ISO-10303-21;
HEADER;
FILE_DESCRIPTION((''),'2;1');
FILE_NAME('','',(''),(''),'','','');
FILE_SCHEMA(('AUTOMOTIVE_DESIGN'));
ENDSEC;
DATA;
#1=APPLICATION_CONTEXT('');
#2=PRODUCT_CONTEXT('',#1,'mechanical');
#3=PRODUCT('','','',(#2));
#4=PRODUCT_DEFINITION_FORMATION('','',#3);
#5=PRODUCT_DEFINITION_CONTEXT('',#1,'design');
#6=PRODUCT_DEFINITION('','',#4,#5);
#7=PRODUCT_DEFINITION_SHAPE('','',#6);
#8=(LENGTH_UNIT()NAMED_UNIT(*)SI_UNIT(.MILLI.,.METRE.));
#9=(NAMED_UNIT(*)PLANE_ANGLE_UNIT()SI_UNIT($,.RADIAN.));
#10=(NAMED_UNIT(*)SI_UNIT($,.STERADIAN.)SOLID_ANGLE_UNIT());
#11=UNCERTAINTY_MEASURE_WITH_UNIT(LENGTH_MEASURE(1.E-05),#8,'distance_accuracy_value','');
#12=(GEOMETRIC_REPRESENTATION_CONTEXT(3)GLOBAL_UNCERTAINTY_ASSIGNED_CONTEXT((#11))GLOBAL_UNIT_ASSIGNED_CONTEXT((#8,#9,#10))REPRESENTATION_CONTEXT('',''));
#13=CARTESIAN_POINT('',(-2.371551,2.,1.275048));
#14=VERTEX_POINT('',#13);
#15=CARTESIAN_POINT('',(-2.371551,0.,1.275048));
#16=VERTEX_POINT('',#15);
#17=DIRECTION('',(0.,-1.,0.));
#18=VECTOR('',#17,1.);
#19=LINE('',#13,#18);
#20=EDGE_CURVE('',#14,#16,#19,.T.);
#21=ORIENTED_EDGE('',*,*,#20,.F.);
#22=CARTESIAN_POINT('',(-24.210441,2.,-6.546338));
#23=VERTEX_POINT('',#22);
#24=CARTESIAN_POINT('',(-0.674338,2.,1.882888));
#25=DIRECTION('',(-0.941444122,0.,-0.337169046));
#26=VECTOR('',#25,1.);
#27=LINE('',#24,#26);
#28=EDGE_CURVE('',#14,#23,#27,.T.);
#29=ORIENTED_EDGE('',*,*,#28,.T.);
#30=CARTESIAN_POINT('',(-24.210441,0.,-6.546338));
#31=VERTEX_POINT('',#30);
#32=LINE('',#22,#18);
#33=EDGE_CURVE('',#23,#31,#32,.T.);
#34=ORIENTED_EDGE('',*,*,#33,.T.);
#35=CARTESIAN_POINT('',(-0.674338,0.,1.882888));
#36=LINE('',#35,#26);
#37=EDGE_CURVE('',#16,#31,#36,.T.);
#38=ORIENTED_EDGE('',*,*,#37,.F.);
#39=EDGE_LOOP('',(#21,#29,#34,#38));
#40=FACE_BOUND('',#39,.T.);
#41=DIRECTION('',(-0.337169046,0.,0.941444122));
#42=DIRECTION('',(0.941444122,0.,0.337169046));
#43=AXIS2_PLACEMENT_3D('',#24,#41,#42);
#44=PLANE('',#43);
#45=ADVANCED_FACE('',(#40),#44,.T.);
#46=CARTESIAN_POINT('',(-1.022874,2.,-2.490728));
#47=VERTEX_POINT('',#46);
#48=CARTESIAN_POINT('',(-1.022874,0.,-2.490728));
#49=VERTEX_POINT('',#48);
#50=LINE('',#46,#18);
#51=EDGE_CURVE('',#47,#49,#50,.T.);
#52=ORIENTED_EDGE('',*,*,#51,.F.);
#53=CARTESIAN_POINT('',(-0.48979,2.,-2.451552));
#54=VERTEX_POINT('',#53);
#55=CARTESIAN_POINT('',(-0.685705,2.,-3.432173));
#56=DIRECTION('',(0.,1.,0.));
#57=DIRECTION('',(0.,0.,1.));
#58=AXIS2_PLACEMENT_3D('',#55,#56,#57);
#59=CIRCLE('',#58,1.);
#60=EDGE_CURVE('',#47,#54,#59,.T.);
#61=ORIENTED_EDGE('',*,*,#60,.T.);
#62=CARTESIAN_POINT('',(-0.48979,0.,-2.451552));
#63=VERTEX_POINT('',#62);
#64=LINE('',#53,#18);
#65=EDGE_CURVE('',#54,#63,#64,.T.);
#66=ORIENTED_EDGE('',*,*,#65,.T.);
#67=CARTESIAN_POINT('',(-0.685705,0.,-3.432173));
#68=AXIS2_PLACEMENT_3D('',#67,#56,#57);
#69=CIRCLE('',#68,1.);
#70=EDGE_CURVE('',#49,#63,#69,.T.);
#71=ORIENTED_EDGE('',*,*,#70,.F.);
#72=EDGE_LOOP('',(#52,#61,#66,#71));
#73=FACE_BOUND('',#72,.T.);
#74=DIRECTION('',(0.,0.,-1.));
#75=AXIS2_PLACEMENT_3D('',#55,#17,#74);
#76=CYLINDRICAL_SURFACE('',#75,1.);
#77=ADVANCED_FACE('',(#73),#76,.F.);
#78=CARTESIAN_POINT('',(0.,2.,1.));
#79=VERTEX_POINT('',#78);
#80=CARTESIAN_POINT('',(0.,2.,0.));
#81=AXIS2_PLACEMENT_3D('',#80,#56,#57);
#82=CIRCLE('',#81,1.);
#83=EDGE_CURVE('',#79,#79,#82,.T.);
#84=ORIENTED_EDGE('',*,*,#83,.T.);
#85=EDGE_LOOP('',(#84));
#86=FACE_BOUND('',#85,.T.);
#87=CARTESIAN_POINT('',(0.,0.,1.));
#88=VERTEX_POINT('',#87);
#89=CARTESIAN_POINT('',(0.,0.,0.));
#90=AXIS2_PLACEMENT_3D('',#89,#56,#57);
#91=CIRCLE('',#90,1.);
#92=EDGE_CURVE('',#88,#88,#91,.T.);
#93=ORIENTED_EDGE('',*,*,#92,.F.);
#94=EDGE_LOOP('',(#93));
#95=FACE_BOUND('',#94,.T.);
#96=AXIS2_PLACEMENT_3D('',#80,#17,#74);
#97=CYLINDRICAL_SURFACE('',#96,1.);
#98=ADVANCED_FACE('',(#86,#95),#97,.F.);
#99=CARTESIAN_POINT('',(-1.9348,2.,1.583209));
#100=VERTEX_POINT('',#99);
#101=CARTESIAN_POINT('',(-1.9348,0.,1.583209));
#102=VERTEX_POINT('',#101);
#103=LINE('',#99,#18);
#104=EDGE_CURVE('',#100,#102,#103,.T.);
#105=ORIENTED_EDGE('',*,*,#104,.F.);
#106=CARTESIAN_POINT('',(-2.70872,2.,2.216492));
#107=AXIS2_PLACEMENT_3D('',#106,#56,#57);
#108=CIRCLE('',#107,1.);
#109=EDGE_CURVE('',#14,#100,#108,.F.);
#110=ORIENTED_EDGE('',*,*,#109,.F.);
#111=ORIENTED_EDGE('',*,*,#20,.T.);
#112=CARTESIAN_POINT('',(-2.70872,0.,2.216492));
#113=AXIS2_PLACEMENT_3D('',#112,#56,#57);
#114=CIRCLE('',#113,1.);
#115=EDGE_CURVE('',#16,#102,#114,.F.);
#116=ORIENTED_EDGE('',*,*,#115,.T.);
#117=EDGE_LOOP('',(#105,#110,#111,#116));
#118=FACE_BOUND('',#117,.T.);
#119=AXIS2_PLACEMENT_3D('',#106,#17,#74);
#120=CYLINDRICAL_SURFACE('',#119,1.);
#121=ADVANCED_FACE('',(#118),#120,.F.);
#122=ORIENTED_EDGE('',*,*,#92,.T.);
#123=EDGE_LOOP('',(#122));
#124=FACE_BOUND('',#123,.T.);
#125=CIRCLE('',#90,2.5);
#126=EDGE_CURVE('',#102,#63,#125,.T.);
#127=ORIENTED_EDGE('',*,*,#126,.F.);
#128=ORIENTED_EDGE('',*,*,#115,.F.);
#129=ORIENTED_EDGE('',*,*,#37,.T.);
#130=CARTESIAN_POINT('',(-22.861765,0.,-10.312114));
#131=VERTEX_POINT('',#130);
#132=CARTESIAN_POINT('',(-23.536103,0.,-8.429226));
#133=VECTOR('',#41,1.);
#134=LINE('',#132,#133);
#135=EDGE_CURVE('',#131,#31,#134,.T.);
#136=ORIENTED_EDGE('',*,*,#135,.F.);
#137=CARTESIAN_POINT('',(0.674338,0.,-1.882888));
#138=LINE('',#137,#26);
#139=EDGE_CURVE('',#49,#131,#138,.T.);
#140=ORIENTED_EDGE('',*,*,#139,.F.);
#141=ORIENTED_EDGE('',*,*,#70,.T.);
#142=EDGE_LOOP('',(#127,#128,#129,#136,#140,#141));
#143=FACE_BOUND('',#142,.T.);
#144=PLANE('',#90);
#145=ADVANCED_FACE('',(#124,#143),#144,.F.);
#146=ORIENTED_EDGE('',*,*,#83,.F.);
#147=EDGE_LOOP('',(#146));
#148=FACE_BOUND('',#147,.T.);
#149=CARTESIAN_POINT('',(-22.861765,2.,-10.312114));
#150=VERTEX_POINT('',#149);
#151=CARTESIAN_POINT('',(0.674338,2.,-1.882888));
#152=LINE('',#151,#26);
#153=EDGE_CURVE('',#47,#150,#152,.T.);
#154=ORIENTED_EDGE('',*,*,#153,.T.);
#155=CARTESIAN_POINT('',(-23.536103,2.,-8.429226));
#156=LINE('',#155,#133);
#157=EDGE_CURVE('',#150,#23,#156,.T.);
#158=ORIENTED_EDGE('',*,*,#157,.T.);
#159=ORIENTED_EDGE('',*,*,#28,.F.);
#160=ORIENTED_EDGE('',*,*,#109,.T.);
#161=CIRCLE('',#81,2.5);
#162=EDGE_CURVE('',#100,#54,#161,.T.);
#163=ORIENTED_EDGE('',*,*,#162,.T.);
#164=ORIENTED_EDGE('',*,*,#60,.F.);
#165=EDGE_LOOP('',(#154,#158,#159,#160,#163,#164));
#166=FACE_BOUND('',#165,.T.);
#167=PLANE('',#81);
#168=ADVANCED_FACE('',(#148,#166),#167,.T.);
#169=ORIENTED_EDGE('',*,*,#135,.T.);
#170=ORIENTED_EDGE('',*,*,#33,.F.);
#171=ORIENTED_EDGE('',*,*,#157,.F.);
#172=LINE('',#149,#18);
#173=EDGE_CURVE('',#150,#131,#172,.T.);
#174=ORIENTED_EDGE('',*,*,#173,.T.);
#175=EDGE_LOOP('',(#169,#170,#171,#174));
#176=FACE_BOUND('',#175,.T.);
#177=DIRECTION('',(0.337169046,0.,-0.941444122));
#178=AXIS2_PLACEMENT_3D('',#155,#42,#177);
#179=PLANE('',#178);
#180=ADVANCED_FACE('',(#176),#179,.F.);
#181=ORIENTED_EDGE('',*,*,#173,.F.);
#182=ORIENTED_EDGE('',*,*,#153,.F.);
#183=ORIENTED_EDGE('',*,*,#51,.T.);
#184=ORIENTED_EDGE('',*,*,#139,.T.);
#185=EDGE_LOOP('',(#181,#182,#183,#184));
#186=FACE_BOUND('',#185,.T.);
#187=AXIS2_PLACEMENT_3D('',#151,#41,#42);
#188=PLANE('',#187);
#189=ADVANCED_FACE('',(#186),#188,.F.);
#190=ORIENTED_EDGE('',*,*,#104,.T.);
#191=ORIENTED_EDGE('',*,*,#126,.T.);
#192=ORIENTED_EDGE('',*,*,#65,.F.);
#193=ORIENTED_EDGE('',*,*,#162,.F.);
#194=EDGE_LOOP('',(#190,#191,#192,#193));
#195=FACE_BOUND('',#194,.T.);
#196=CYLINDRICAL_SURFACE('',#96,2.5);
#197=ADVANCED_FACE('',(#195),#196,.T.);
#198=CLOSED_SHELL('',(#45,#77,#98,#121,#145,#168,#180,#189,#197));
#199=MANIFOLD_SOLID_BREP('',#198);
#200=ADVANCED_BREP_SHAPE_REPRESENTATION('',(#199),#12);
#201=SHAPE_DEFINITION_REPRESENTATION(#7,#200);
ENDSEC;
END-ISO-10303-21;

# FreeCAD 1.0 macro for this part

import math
import FreeCAD as App
import Part
import Sketcher
from FreeCAD import Vector
Q = App.Units.Quantity

doc = App.newDocument("Part")
body = doc.addObject("PartDesign::Body", "Body")

# Sketch on XZ plane
sketch1 = body.newObject("Sketcher::SketchObject", "Sketch")
sketch1.AttachmentSupport = (doc.getObject("XZ_Plane"), [""])
sketch1.MapMode = "FlatFace"
sketch1.addGeometry(Part.LineSegment(Vector(-1.022874, -2.490728, 0), Vector(-22.861765, -10.312114, 0)), False)
sketch1.addGeometry(Part.LineSegment(Vector(-22.861765, -10.312114, 0), Vector(-24.210441, -6.546338, 0)), False)
sketch1.addGeometry(Part.LineSegment(Vector(-24.210441, -6.546338, 0), Vector(-2.371551, 1.275048, 0)), False)
sketch1.addGeometry(Part.ArcOfCircle(Part.Circle(Vector(-2.70872, 2.216492, 0), Vector(0, 0, 1), 1), math.radians(-70.295509), math.radians(-39.29279)), False)
sketch1.addGeometry(Part.ArcOfCircle(Part.Circle(Vector(0, 0, 0), Vector(0, 0, 1), 2.5), math.radians(-101.298229), math.radians(140.70721)), False)
sketch1.addGeometry(Part.ArcOfCircle(Part.Circle(Vector(-0.685705, -3.432172, 0), Vector(0, 0, 1), 1), math.radians(78.701771), math.radians(109.704491)), False)
sketch1.addGeometry(Part.Circle(Vector(0, 0, 0), Vector(0, 0, 1), 1), False)
sketch1.addConstraint(Sketcher.Constraint("Coincident", 0, 2, 1, 1))
sketch1.addConstraint(Sketcher.Constraint("Coincident", 1, 2, 2, 1))
sketch1.addConstraint(Sketcher.Constraint("Tangent", 2, 2, 3, 1))
sketch1.addConstraint(Sketcher.Constraint("Tangent", 3, 2, 4, 2))
sketch1.addConstraint(Sketcher.Constraint("Tangent", 4, 1, 5, 1))
sketch1.addConstraint(Sketcher.Constraint("Tangent", 5, 2, 0, 1))
sketch1.addConstraint(Sketcher.Constraint("Coincident", 4, 3, -1, 1))
sketch1.addConstraint(Sketcher.Constraint("Coincident", 6, 3, -1, 1))
sketch1.addConstraint(Sketcher.Constraint("Equal", 3, 5))
sketch1.addConstraint(Sketcher.Constraint("Equal", 5, 6))
sketch1.addConstraint(Sketcher.Constraint("Perpendicular", 0, 1))
sketch1.addConstraint(Sketcher.Constraint("Perpendicular", 1, 2))
sketch1.addConstraint(Sketcher.Constraint("Equal", 0, 2))
sketch1.addConstraint(Sketcher.Constraint("Diameter", 6, Q("2 mm")))
sketch1.addConstraint(Sketcher.Constraint("Radius", 4, Q("2.5 mm")))
sketch1.addConstraint(Sketcher.Constraint("Distance", 1, Q("4 mm")))
sketch1.addConstraint(Sketcher.Constraint("DistanceX", 3, 2, -1, 1, Q("1.9348 mm")))
sketch1.addConstraint(Sketcher.Constraint("DistanceX", 1, 2, -1, 1, Q("24.210441 mm")))
pad1 = body.newObject("PartDesign::Pad", "Pad")
pad1.Profile = sketch1
pad1.Length = 2
pad1.Reversed = True

doc.recompute()
